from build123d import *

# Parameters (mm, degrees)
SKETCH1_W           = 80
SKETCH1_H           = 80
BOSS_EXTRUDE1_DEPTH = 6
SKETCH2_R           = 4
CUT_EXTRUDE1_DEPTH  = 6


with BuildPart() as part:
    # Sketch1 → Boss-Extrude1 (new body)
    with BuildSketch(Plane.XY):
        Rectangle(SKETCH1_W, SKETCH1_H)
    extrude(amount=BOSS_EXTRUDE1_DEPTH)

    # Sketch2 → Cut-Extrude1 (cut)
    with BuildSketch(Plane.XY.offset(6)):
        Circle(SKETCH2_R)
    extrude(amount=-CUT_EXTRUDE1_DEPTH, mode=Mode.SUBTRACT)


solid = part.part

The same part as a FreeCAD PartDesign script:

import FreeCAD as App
import Part
import Sketcher

doc = App.newDocument("Part")
body = doc.addObject("PartDesign::Body", "Body")

sketch1 = doc.addObject("Sketcher::SketchObject", "Sketch")
body.addObject(sketch1)
sketch1.AttachmentSupport = (doc.XY_Plane, [""])
sketch1.MapMode = "FlatFace"
sketch1.addGeometry([
    Part.LineSegment(App.Vector(-40, 40, 0), App.Vector(-40, -40, 0)),
    Part.LineSegment(App.Vector(-40, -40, 0), App.Vector(40, -40, 0)),
    Part.LineSegment(App.Vector(40, -40, 0), App.Vector(40, 40, 0)),
    Part.LineSegment(App.Vector(40, 40, 0), App.Vector(-40, 40, 0)),
], False)
sketch1.addConstraint([
    Sketcher.Constraint("Coincident", 0, 2, 1, 1),
    Sketcher.Constraint("Coincident", 1, 2, 2, 1),
    Sketcher.Constraint("Coincident", 2, 2, 3, 1),
    Sketcher.Constraint("Coincident", 3, 2, 0, 1),
    Sketcher.Constraint("Vertical", 0),
    Sketcher.Constraint("Horizontal", 1),
    Sketcher.Constraint("Vertical", 2),
    Sketcher.Constraint("Horizontal", 3),
    Sketcher.Constraint("Symmetric", 0, 2, 2, 2, -1, 1),
    Sketcher.Constraint("Equal", 3, 0),
    Sketcher.Constraint("DistanceX", 1, 1, 1, 2, 80.0),
])
pad1 = doc.addObject("PartDesign::Pad", "Pad")
body.addObject(pad1)
pad1.Profile = sketch1
pad1.Length = 6

sketch2 = doc.addObject("Sketcher::SketchObject", "Sketch001")
body.addObject(sketch2)
sketch2.AttachmentSupport = (doc.XY_Plane, [""])
sketch2.MapMode = "FlatFace"
sketch2.AttachmentOffset = App.Placement(App.Vector(0, 0, 6), App.Rotation())
sketch2.addGeometry(Part.Circle(App.Vector(0, 0, 0), App.Vector(0, 0, 1), 4), False)
sketch2.addConstraint([
    Sketcher.Constraint("Coincident", 0, 3, -1, 1),
    Sketcher.Constraint("Diameter", 0, 8.0),
])
pocket1 = doc.addObject("PartDesign::Pocket", "Pocket")
body.addObject(pocket1)
pocket1.Profile = sketch2
pocket1.Length = 6

doc.recompute()
